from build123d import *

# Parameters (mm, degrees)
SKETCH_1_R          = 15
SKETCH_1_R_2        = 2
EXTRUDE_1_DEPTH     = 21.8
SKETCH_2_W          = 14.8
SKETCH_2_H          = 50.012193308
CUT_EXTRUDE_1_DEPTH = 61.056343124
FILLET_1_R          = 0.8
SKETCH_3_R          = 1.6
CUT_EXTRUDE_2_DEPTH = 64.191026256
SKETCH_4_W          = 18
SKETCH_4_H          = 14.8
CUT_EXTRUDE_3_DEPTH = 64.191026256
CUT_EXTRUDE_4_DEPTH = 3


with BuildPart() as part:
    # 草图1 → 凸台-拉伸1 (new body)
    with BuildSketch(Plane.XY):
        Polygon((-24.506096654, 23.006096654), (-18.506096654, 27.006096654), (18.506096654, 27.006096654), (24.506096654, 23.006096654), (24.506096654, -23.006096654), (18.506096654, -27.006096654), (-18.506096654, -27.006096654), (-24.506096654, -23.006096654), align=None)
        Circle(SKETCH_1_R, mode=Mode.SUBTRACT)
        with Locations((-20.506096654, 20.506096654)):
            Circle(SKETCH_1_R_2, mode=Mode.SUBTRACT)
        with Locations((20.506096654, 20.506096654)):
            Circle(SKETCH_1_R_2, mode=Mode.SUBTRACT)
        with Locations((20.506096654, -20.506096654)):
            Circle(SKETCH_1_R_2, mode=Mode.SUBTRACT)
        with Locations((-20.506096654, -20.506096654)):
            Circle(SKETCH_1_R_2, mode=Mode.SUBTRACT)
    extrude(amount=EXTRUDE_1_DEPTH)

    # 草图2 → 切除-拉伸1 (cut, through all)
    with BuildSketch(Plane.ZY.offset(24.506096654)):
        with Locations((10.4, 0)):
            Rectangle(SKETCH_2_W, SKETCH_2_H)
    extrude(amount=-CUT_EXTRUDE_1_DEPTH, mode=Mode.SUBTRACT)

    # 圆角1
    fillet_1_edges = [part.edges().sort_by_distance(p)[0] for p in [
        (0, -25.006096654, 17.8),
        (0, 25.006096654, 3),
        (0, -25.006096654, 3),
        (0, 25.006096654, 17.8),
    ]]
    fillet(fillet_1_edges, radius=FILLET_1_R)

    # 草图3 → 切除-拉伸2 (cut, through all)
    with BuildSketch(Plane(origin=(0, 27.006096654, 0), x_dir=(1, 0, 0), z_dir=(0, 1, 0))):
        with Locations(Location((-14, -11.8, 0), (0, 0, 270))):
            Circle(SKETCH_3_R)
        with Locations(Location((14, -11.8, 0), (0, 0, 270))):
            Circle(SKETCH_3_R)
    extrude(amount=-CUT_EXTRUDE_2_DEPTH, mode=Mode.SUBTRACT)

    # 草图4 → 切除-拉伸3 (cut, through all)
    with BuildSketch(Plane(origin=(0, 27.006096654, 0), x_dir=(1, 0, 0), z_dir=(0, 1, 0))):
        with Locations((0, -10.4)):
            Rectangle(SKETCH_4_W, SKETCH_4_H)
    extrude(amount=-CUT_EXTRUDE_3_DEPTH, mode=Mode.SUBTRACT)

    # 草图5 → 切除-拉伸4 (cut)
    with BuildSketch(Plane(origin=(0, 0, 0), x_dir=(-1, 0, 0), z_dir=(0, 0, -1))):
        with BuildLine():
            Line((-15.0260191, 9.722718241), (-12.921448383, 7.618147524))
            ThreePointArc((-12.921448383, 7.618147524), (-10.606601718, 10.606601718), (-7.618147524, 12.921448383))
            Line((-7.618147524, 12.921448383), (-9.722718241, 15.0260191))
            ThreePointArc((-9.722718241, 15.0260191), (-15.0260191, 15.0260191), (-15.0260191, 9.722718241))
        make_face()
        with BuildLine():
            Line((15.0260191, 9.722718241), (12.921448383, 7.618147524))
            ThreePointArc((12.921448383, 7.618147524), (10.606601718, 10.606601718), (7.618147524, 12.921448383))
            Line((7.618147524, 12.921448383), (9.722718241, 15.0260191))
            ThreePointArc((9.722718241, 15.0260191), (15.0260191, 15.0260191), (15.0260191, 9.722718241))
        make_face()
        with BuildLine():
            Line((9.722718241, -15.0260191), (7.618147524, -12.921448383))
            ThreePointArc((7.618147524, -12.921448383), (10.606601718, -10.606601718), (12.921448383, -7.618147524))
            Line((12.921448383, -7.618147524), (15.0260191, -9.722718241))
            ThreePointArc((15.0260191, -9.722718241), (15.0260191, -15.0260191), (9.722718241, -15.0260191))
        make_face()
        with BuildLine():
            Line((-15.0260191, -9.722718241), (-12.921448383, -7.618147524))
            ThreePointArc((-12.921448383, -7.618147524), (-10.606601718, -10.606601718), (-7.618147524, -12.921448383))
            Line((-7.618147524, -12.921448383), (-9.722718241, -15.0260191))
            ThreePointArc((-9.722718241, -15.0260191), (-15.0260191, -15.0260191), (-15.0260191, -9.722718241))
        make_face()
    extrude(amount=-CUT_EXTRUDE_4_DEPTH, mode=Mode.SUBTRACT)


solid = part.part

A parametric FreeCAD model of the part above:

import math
import FreeCAD as App
import Part
import Sketcher

V = App.Vector
Q = App.Units.Quantity


def edges_at(feature, points):
    """Names of the edges that pass closest to the given points."""
    edges = feature.Shape.Edges
    near = lambda p: min(range(len(edges)), key=lambda i: edges[i].distToShape(Part.Vertex(*p))[0])
    return sorted({f"Edge{near(p) + 1}" for p in points})


def add_polygon(sketch, points):
    """Adds a closed chain of lines whose ends are joined by coincident constraints."""
    first, n = sketch.GeometryCount, len(points)
    for a, b in zip(points, points[1:] + points[:1]):
        sketch.addGeometry(Part.LineSegment(App.Vector(*a, 0), App.Vector(*b, 0)), False)
    for i in range(n):
        sketch.addConstraint(Sketcher.Constraint("Coincident", first + i, 2, first + (i + 1) % n, 1))

doc = App.newDocument("Part")
body = doc.addObject("PartDesign::Body", "Body")

sketch1 = body.newObject("Sketcher::SketchObject", "Sketch")
sketch1.AttachmentSupport = (doc.getObject("XY_Plane"), [""])
sketch1.MapMode = "FlatFace"
add_polygon(sketch1, [(-18.506097, 27.006097), (-24.506097, 23.006097), (-24.506097, -23.006097), (-18.506097, -27.006097), (18.506097, -27.006097), (24.506097, -23.006097), (24.506097, 23.006097), (18.506097, 27.006097)])
sketch1.addGeometry(Part.Circle(V(20.506097, -20.506097, 0), V(0, 0, 1), 2), False)
sketch1.addGeometry(Part.Circle(V(-20.506097, -20.506097, 0), V(0, 0, 1), 2), False)
sketch1.addGeometry(Part.Circle(V(20.506097, 20.506097, 0), V(0, 0, 1), 2), False)
sketch1.addGeometry(Part.Circle(V(0, 0, 0), V(0, 0, 1), 15), False)
sketch1.addGeometry(Part.Circle(V(-20.506097, 20.506097, 0), V(0, 0, 1), 2), False)
sketch1.addConstraint([
    Sketcher.Constraint("Vertical", 1),
    Sketcher.Constraint("Horizontal", 3),
    Sketcher.Constraint("Vertical", 5),
    Sketcher.Constraint("Horizontal", 7),
    Sketcher.Constraint("Coincident", 11, 3, -1, 1),
    Sketcher.Constraint("Equal", 8, 9),
    Sketcher.Constraint("Equal", 9, 10),
    Sketcher.Constraint("Equal", 10, 12),
    Sketcher.Constraint("Symmetric", 9, 3, 10, 3, -1, 1),
    Sketcher.Constraint("Symmetric", 8, 3, 12, 3, -1, 1),
    Sketcher.Constraint("Symmetric", 0, 2, 4, 2, -1, 1),
    Sketcher.Constraint("Symmetric", 2, 2, 6, 2, -1, 1),
    Sketcher.Constraint("Symmetric", 8, 3, 9, 3, -2),
    Sketcher.Constraint("Parallel", 0, 4),
    Sketcher.Constraint("Parallel", 2, 6),
    Sketcher.Constraint("Horizontal", 1, 2, 4, 2),
    Sketcher.Constraint("Vertical", 3, 2, 6, 2),
    Sketcher.Constraint("Diameter", 8, Q("4 mm")),
    Sketcher.Constraint("Diameter", 11, Q("30 mm")),
    Sketcher.Constraint("DistanceX", 0, 2, 12, 3, Q("4 mm")),
    Sketcher.Constraint("DistanceX", 9, 3, 2, 2, Q("2 mm")),
    Sketcher.Constraint("DistanceY", 2, 2, 1, 2, Q("4 mm")),
    Sketcher.Constraint("DistanceY", 12, 3, 0, 2, Q("2.5 mm")),
    Sketcher.Constraint("DistanceX", 3, 1, 3, 2, Q("37.012193 mm")),
    Sketcher.Constraint("DistanceY", 1, 2, 1, 1, Q("46.012193 mm")),
])
pad1 = body.newObject("PartDesign::Pad", "Pad")
pad1.Profile = sketch1
pad1.Length = 21.8

sketch2 = body.newObject("Sketcher::SketchObject", "Sketch001")
sketch2.AttachmentSupport = (doc.getObject("YZ_Plane"), [""])
sketch2.MapMode = "FlatFace"
sketch2.AttachmentOffset = App.Placement(V(0, 0, -24.506097), App.Rotation())
add_polygon(sketch2, [(25.006097, 3), (-25.006097, 3), (-25.006097, 17.8), (25.006097, 17.8)])
sketch2.addConstraint([
    Sketcher.Constraint("Horizontal", 0),
    Sketcher.Constraint("Vertical", 1),
    Sketcher.Constraint("Horizontal", 2),
    Sketcher.Constraint("Vertical", 3),
    Sketcher.Constraint("DistanceY", 1, 1, 1, 2, Q("14.8 mm")),
    Sketcher.Constraint("DistanceY", -1, 1, 0, 2, Q("3 mm")),
    Sketcher.Constraint("DistanceX", 0, 2, 0, 1, Q("50.012193 mm")),
    Sketcher.Constraint("DistanceX", 0, 2, -1, 1, Q("25.006097 mm")),
])
pocket1 = body.newObject("PartDesign::Pocket", "Pocket")
pocket1.Profile = sketch2
pocket1.Type = "ThroughAll"
pocket1.Reversed = True
doc.recompute()

fillet = body.newObject("PartDesign::Fillet", "Fillet")
fillet.Base = (pocket1, edges_at(pocket1, [
    (0, -25.006, 17.8),
    (0, 25.006, 3),
    (0, -25.006, 3),
    (0, 25.006, 17.8),
]))
fillet.Radius = 0.8

sketch3 = body.newObject("Sketcher::SketchObject", "Sketch002")
sketch3.AttachmentSupport = (doc.getObject("XZ_Plane"), [""])
sketch3.MapMode = "FlatFace"
sketch3.AttachmentOffset = App.Placement(V(0, 0, -27.006097), App.Rotation())
sketch3.addGeometry([
    Part.Circle(V(-14, 11.8, 0), V(0, 0, 1), 1.6),
    Part.Circle(V(14, 11.8, 0), V(0, 0, 1), 1.6),
], False)
sketch3.addConstraint([
    Sketcher.Constraint("Equal", 0, 1),
    Sketcher.Constraint("Symmetric", 0, 3, 1, 3, -2),
    Sketcher.Constraint("Diameter", 0, Q("3.2 mm")),
    Sketcher.Constraint("DistanceX", 0, 3, -1, 1, Q("14 mm")),
    Sketcher.Constraint("DistanceY", -1, 1, 0, 3, Q("11.8 mm")),
])
pocket2 = body.newObject("PartDesign::Pocket", "Pocket001")
pocket2.Profile = sketch3
pocket2.Type = "ThroughAll"
pocket2.Reversed = True

sketch4 = body.newObject("Sketcher::SketchObject", "Sketch003")
sketch4.AttachmentSupport = (doc.getObject("XZ_Plane"), [""])
sketch4.MapMode = "FlatFace"
sketch4.AttachmentOffset = App.Placement(V(0, 0, -27.006097), App.Rotation())
add_polygon(sketch4, [(-9, 3), (-9, 17.8), (9, 17.8), (9, 3)])
sketch4.addConstraint([
    Sketcher.Constraint("Vertical", 0),
    Sketcher.Constraint("Horizontal", 1),
    Sketcher.Constraint("Vertical", 2),
    Sketcher.Constraint("Horizontal", 3),
    Sketcher.Constraint("DistanceX", 1, 1, 1, 2, Q("18 mm")),
    Sketcher.Constraint("DistanceY", 0, 1, 0, 2, Q("14.8 mm")),
    Sketcher.Constraint("DistanceX", 0, 2, -1, 1, Q("9 mm")),
    Sketcher.Constraint("DistanceY", -1, 1, 2, 2, Q("3 mm")),
])
pocket3 = body.newObject("PartDesign::Pocket", "Pocket002")
pocket3.Profile = sketch4
pocket3.Type = "ThroughAll"
pocket3.Reversed = True

sketch5 = body.newObject("Sketcher::SketchObject", "Sketch004")
sketch5.AttachmentSupport = (doc.getObject("XY_Plane"), [""])
sketch5.MapMode = "FlatFace"
sketch5.addGeometry([
    Part.LineSegment(V(15.026019, 9.722718, 0), V(12.921448, 7.618148, 0)),
    Part.ArcOfCircle(Part.Circle(V(0, 0, 0), V(0, 0, 1), 15), math.radians(30.522488), math.radians(59.477512)),
    Part.LineSegment(V(7.618148, 12.921448, 0), V(9.722718, 15.026019, 0)),
    Part.ArcOfCircle(Part.Circle(V(12.374369, 12.374369, 0), V(0, 0, 1), 3.75), math.radians(-45), math.radians(135)),
    Part.LineSegment(V(-12.921448, 7.618148, 0), V(-15.026019, 9.722718, 0)),
    Part.ArcOfCircle(Part.Circle(V(-12.374369, 12.374369, 0), V(0, 0, 1), 3.75), math.radians(45), math.radians(225)),
    Part.LineSegment(V(-9.722718, 15.026019, 0), V(-7.618148, 12.921448, 0)),
    Part.ArcOfCircle(Part.Circle(V(0, 0, 0), V(0, 0, 1), 15), math.radians(120.522488), math.radians(149.477512)),
    Part.LineSegment(V(-7.618148, -12.921448, 0), V(-9.722718, -15.026019, 0)),
    Part.ArcOfCircle(Part.Circle(V(-12.374369, -12.374369, 0), V(0, 0, 1), 3.75), math.radians(135), math.radians(315)),
    Part.LineSegment(V(-15.026019, -9.722718, 0), V(-12.921448, -7.618148, 0)),
    Part.ArcOfCircle(Part.Circle(V(0, 0, 0), V(0, 0, 1), 15), math.radians(-149.477512), math.radians(-120.522488)),
    Part.LineSegment(V(12.921448, -7.618148, 0), V(15.026019, -9.722718, 0)),
    Part.ArcOfCircle(Part.Circle(V(12.374369, -12.374369, 0), V(0, 0, 1), 3.75), math.radians(-135), math.radians(45)),
    Part.LineSegment(V(9.722718, -15.026019, 0), V(7.618148, -12.921448, 0)),
    Part.ArcOfCircle(Part.Circle(V(0, 0, 0), V(0, 0, 1), 15), math.radians(-59.477512), math.radians(-30.522488)),
], False)
sketch5.addConstraint([
    Sketcher.Constraint("Coincident", 0, 2, 1, 1),
    Sketcher.Constraint("Coincident", 1, 2, 2, 1),
    Sketcher.Constraint("Tangent", 2, 2, 3, 2),
    Sketcher.Constraint("Tangent", 3, 1, 0, 1),
    Sketcher.Constraint("Tangent", 4, 2, 5, 2),
    Sketcher.Constraint("Tangent", 5, 1, 6, 1),
    Sketcher.Constraint("Coincident", 6, 2, 7, 1),
    Sketcher.Constraint("Coincident", 7, 2, 4, 1),
    Sketcher.Constraint("Tangent", 8, 2, 9, 2),
    Sketcher.Constraint("Tangent", 9, 1, 10, 1),
    Sketcher.Constraint("Coincident", 10, 2, 11, 1),
    Sketcher.Constraint("Coincident", 11, 2, 8, 1),
    Sketcher.Constraint("Tangent", 12, 2, 13, 2),
    Sketcher.Constraint("Tangent", 13, 1, 14, 1),
    Sketcher.Constraint("Coincident", 14, 2, 15, 1),
    Sketcher.Constraint("Coincident", 15, 2, 12, 1),
    Sketcher.Constraint("Coincident", 1, 3, -1, 1),
    Sketcher.Constraint("Coincident", 7, 3, -1, 1),
    Sketcher.Constraint("Coincident", 11, 3, -1, 1),
    Sketcher.Constraint("Coincident", 15, 3, -1, 1),
    Sketcher.Constraint("Equal", 3, 5),
    Sketcher.Constraint("Equal", 1, 7),
    Sketcher.Constraint("Equal", 5, 9),
    Sketcher.Constraint("Equal", 7, 11),
    Sketcher.Constraint("Equal", 9, 13),
    Sketcher.Constraint("Equal", 11, 15),
    Sketcher.Constraint("Symmetric", 3, 3, 9, 3, -1, 1),
    Sketcher.Constraint("Symmetric", 5, 3, 13, 3, -1, 1),
    Sketcher.Constraint("Symmetric", 3, 3, 5, 3, -2),
    Sketcher.Constraint("Parallel", 0, 2),
    Sketcher.Constraint("Perpendicular", 2, 4),
    Sketcher.Constraint("Parallel", 4, 6),
    Sketcher.Constraint("Perpendicular", 6, 8),
    Sketcher.Constraint("Parallel", 8, 10),
    Sketcher.Constraint("Perpendicular", 10, 12),
    Sketcher.Constraint("Parallel", 12, 14),
    Sketcher.Constraint("Horizontal", 3, 1, 4, 2),
    Sketcher.Constraint("Equal", 0, 2),
    Sketcher.Constraint("Radius", 1, Q("15 mm")),
    Sketcher.Constraint("Radius", 3, Q("3.75 mm")),
    Sketcher.Constraint("DistanceX", -1, 1, 3, 3, Q("12.374369 mm")),
])
pocket4 = body.newObject("PartDesign::Pocket", "Pocket003")
pocket4.Profile = sketch5
pocket4.Length = 3
pocket4.Reversed = True

doc.recompute()
